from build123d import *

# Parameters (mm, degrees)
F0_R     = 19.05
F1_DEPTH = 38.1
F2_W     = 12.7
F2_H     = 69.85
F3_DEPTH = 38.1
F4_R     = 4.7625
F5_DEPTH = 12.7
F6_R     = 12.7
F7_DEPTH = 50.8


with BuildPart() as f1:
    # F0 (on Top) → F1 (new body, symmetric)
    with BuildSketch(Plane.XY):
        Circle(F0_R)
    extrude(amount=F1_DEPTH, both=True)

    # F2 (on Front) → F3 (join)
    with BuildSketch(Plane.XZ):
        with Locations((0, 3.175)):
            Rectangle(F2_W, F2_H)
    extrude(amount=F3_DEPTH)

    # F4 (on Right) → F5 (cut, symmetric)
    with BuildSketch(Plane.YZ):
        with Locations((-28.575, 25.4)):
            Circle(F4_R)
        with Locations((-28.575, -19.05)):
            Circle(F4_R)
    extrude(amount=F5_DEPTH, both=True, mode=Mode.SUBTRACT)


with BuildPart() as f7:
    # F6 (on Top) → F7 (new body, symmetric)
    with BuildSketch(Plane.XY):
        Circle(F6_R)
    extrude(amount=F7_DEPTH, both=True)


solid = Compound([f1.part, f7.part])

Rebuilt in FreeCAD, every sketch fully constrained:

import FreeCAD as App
import Part
import Sketcher
Q = App.Units.Quantity

doc = App.newDocument("Part")
params = doc.addObject("Spreadsheet::Sheet", "Params")
for row, (alias, value) in enumerate([
    ("sketch1_diameter", "1.5 in"),
    ("pad1_length", "3 in"),
    ("sketch2_width", "0.5 in"),
    ("sketch2_height", "2.75 in"),
    ("pad2_length", "1.5 in"),
    ("sketch3_diameter", "0.375 in"),
    ("pocket1_length", "1 in"),
    ("sketch4_diameter", "1 in"),
    ("pad3_length", "4 in"),
], start=1):
    params.set(f"A{row}", alias)
    params.set(f"B{row}", "=" + value)
    params.setAlias(f"B{row}", alias)

body = doc.addObject("PartDesign::Body", "Body")

# Sketch on XY plane
sketch1 = body.newObject("Sketcher::SketchObject", "Sketch")
sketch1.AttachmentSupport = (doc.getObject("XY_Plane"), [""])
sketch1.MapMode = "FlatFace"
sketch1.addGeometry(Part.Circle(App.Vector(0, 0, 0), App.Vector(0, 0, 1), 19), False)
sketch1.addConstraint(Sketcher.Constraint("Coincident", 0, 3, -1, 1))
sketch1.addConstraint(Sketcher.Constraint("Diameter", 0, Q("1.5 in")))
sketch1.setExpression("Constraints[1]", "Params.sketch1_diameter")
pad1 = body.newObject("PartDesign::Pad", "Pad")
pad1.Profile = sketch1
pad1.setExpression("Length", "Params.pad1_length")
pad1.Midplane = True

# Sketch on XZ plane
sketch2 = body.newObject("Sketcher::SketchObject", "Sketch001")
sketch2.AttachmentSupport = (doc.getObject("XZ_Plane"), [""])
sketch2.MapMode = "FlatFace"
sketch2.addGeometry(Part.LineSegment(App.Vector(-6, 38, 0), App.Vector(-6, -32, 0)), False)
sketch2.addGeometry(Part.LineSegment(App.Vector(-6, -32, 0), App.Vector(6, -32, 0)), False)
sketch2.addGeometry(Part.LineSegment(App.Vector(6, -32, 0), App.Vector(6, 38, 0)), False)
sketch2.addGeometry(Part.LineSegment(App.Vector(6, 38, 0), App.Vector(-6, 38, 0)), False)
sketch2.addConstraint(Sketcher.Constraint("Coincident", 0, 2, 1, 1))
sketch2.addConstraint(Sketcher.Constraint("Coincident", 1, 2, 2, 1))
sketch2.addConstraint(Sketcher.Constraint("Coincident", 2, 2, 3, 1))
sketch2.addConstraint(Sketcher.Constraint("Coincident", 3, 2, 0, 1))
sketch2.addConstraint(Sketcher.Constraint("Vertical", 0))
sketch2.addConstraint(Sketcher.Constraint("Horizontal", 1))
sketch2.addConstraint(Sketcher.Constraint("Vertical", 2))
sketch2.addConstraint(Sketcher.Constraint("Horizontal", 3))
sketch2.addConstraint(Sketcher.Constraint("DistanceX", 1, 1, 1, 2, Q("0.5 in")))
sketch2.addConstraint(Sketcher.Constraint("DistanceY", 0, 2, 0, 1, Q("2.75 in")))
sketch2.addConstraint(Sketcher.Constraint("DistanceY", -1, 1, 2, 2, Q("1.5 in")))
sketch2.addConstraint(Sketcher.Constraint("DistanceX", 0, 2, -1, 1, Q("0.25 in")))
sketch2.setExpression("Constraints[8]", "Params.sketch2_width")
sketch2.setExpression("Constraints[9]", "Params.sketch2_height")
pad2 = body.newObject("PartDesign::Pad", "Pad001")
pad2.Profile = sketch2
pad2.setExpression("Length", "Params.pad2_length")

# Sketch on YZ plane
sketch3 = body.newObject("Sketcher::SketchObject", "Sketch002")
sketch3.AttachmentSupport = (doc.getObject("YZ_Plane"), [""])
sketch3.MapMode = "FlatFace"
sketch3.addGeometry(Part.Circle(App.Vector(-28.6, 25.4, 0), App.Vector(0, 0, 1), 4.8), False)
sketch3.addGeometry(Part.Circle(App.Vector(-28.6, -19.1, 0), App.Vector(0, 0, 1), 4.8), False)
sketch3.addConstraint(Sketcher.Constraint("Equal", 0, 1))
sketch3.addConstraint(Sketcher.Constraint("Vertical", 0, 3, 1, 3))
sketch3.addConstraint(Sketcher.Constraint("Diameter", 0, Q("0.375 in")))
sketch3.addConstraint(Sketcher.Constraint("DistanceY", -1, 1, 0, 3, Q("1 in")))
sketch3.addConstraint(Sketcher.Constraint("DistanceY", 1, 3, -1, 1, Q("0.75 in")))
sketch3.addConstraint(Sketcher.Constraint("DistanceX", 0, 3, -1, 1, Q("1.125 in")))
sketch3.setExpression("Constraints[2]", "Params.sketch3_diameter")
pocket1 = body.newObject("PartDesign::Pocket", "Pocket")
pocket1.Profile = sketch3
pocket1.setExpression("Length", "Params.pocket1_length")
pocket1.Midplane = True
body2 = doc.addObject("PartDesign::Body", "Body001")

# Sketch on XY plane
sketch4 = body2.newObject("Sketcher::SketchObject", "Sketch003")
sketch4.AttachmentSupport = (doc.getObject("XY_Plane001"), [""])
sketch4.MapMode = "FlatFace"
sketch4.addGeometry(Part.Circle(App.Vector(0, 0, 0), App.Vector(0, 0, 1), 13), False)
sketch4.addConstraint(Sketcher.Constraint("Coincident", 0, 3, -1, 1))
sketch4.addConstraint(Sketcher.Constraint("Diameter", 0, Q("1 in")))
sketch4.setExpression("Constraints[1]", "Params.sketch4_diameter")
pad3 = body2.newObject("PartDesign::Pad", "Pad002")
pad3.Profile = sketch4
pad3.setExpression("Length", "Params.pad3_length")
pad3.Midplane = True

doc.recompute()
